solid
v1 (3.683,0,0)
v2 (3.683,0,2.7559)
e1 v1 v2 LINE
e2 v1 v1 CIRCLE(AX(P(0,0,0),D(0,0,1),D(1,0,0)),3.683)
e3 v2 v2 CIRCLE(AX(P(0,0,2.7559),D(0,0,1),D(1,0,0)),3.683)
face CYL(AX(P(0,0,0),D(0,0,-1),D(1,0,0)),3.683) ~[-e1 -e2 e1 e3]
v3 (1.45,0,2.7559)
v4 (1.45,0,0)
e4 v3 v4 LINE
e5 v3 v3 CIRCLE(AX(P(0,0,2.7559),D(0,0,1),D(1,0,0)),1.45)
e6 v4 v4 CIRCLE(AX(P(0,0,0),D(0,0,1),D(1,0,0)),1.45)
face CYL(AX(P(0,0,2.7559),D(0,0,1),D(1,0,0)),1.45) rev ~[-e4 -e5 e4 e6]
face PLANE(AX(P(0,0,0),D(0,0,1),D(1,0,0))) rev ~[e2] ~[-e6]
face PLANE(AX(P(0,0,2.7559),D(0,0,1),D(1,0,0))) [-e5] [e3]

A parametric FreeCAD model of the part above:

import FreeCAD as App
import Part
import Sketcher
from FreeCAD import Vector
Q = App.Units.Quantity

doc = App.newDocument("Part")
params = doc.addObject("Spreadsheet::Sheet", "Params")
for row, (alias, value) in enumerate([
    ("sketch1_diameter", "0.29 in"),
    ("pad1_length", "0.1085 in"),
    ("pocket1_length", "0.984 in"),
], start=1):
    params.set(f"A{row}", alias)
    params.set(f"B{row}", "=" + value)
    params.setAlias(f"B{row}", alias)

body = doc.addObject("PartDesign::Body", "Body")

sketch1 = body.newObject("Sketcher::SketchObject", "Sketch")
sketch1.AttachmentSupport = (doc.getObject("XY_Plane"), [""])
sketch1.MapMode = "FlatFace"
sketch1.addGeometry(Part.Circle(Vector(0, 0, 0), Vector(0, 0, 1), 3.7), False)
sketch1.addConstraint([
    Sketcher.Constraint("Coincident", 0, 3, -1, 1),
    Sketcher.Constraint("Diameter", 0, Q("0.29 in")),
])
sketch1.setExpression("Constraints[1]", "Params.sketch1_diameter")
pad1 = body.newObject("PartDesign::Pad", "Pad")
pad1.Profile = sketch1
pad1.setExpression("Length", "Params.pad1_length")

sketch2 = body.newObject("Sketcher::SketchObject", "Sketch001")
sketch2.AttachmentSupport = (doc.getObject("XY_Plane"), [""])
sketch2.MapMode = "FlatFace"
sketch2.AttachmentOffset = App.Placement(Vector(0, 0, 0.1085 * 25.4), App.Rotation())
sketch2.addGeometry(Part.Circle(Vector(0, 0, 0), Vector(0, 0, 1), 1.4), False)
sketch2.addConstraint([
    Sketcher.Constraint("Coincident", 0, 3, -1, 1),
    Sketcher.Constraint("Diameter", 0, Q("2.9 mm")),
])
pocket1 = body.newObject("PartDesign::Pocket", "Pocket")
pocket1.Profile = sketch2
pocket1.setExpression("Length", "Params.pocket1_length")

doc.recompute()
